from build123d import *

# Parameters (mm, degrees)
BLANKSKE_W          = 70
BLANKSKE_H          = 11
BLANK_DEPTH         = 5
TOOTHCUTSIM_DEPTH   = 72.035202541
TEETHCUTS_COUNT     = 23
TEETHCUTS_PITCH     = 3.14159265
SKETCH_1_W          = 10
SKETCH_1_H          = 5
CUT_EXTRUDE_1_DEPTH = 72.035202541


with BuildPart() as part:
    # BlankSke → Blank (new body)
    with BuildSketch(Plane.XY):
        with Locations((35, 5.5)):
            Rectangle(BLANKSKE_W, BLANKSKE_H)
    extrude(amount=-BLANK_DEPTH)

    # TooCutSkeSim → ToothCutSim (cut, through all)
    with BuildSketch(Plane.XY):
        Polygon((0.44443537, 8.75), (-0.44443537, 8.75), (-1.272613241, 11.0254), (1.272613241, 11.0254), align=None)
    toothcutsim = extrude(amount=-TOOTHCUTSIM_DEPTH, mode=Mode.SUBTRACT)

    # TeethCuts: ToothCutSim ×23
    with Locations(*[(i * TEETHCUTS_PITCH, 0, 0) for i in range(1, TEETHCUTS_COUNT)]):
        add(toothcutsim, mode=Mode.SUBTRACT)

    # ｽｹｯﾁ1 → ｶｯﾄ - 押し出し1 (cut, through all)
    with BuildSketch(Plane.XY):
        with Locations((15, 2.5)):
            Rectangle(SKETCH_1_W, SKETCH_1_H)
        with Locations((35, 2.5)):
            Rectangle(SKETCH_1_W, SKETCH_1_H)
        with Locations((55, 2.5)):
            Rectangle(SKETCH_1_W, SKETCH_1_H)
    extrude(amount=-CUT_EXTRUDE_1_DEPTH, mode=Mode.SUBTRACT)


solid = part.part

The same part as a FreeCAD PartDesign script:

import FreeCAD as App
import Part
import Sketcher

V = App.Vector
Q = App.Units.Quantity

doc = App.newDocument("Part")
params = doc.addObject("Spreadsheet::Sheet", "Params")
for row, (alias, value) in enumerate([
    ("sketch1_width", "70 mm"),
    ("sketch1_height", "11 mm"),
    ("pad1_length", "5 mm"),
    ("linearpattern_pitch", "3.141593 mm"),
    ("sketch3_width", "10 mm"),
    ("sketch3_height", "5 mm"),
], start=1):
    params.set(f"A{row}", alias)
    params.set(f"B{row}", "=" + value)
    params.setAlias(f"B{row}", alias)

body = doc.addObject("PartDesign::Body", "Body")

sketch1 = doc.addObject("Sketcher::SketchObject", "Sketch")
body.addObject(sketch1)
sketch1.AttachmentSupport = (doc.XY_Plane, [""])
sketch1.MapMode = "FlatFace"
sketch1.addGeometry(Part.LineSegment(V(0, 11, 0), V(0, 0, 0)), False)
sketch1.addGeometry(Part.LineSegment(V(0, 0, 0), V(70, 0, 0)), False)
sketch1.addGeometry(Part.LineSegment(V(70, 0, 0), V(70, 11, 0)), False)
sketch1.addGeometry(Part.LineSegment(V(70, 11, 0), V(0, 11, 0)), False)
sketch1.addConstraint(Sketcher.Constraint("Coincident", 0, 2, 1, 1))
sketch1.addConstraint(Sketcher.Constraint("Coincident", 1, 2, 2, 1))
sketch1.addConstraint(Sketcher.Constraint("Coincident", 2, 2, 3, 1))
sketch1.addConstraint(Sketcher.Constraint("Coincident", 3, 2, 0, 1))
sketch1.addConstraint(Sketcher.Constraint("Vertical", 0))
sketch1.addConstraint(Sketcher.Constraint("Horizontal", 1))
sketch1.addConstraint(Sketcher.Constraint("Vertical", 2))
sketch1.addConstraint(Sketcher.Constraint("Horizontal", 3))
sketch1.addConstraint(Sketcher.Constraint("Coincident", 0, 2, -1, 1))
sketch1.addConstraint(Sketcher.Constraint("DistanceX", 1, 1, 1, 2, 70.0))
sketch1.addConstraint(Sketcher.Constraint("DistanceY", 0, 2, 0, 1, 11.0))
sketch1.setExpression("Constraints[9]", "Params.sketch1_width")
sketch1.setExpression("Constraints[10]", "Params.sketch1_height")
pad1 = doc.addObject("PartDesign::Pad", "Pad")
body.addObject(pad1)
pad1.Profile = sketch1
pad1.setExpression("Length", "Params.pad1_length")
pad1.Reversed = True

sketch2 = doc.addObject("Sketcher::SketchObject", "Sketch001")
body.addObject(sketch2)
sketch2.AttachmentSupport = (doc.XY_Plane, [""])
sketch2.MapMode = "FlatFace"
sketch2.addGeometry(Part.LineSegment(V(-0.4, 8.8, 0), V(0.4, 8.8, 0)), False)
sketch2.addGeometry(Part.LineSegment(V(0.4, 8.8, 0), V(1.3, 11, 0)), False)
sketch2.addGeometry(Part.LineSegment(V(1.3, 11, 0), V(-1.3, 11, 0)), False)
sketch2.addGeometry(Part.LineSegment(V(-1.3, 11, 0), V(-0.4, 8.8, 0)), False)
sketch2.addConstraint(Sketcher.Constraint("Coincident", 0, 2, 1, 1))
sketch2.addConstraint(Sketcher.Constraint("Coincident", 1, 2, 2, 1))
sketch2.addConstraint(Sketcher.Constraint("Coincident", 2, 2, 3, 1))
sketch2.addConstraint(Sketcher.Constraint("Coincident", 3, 2, 0, 1))
sketch2.addConstraint(Sketcher.Constraint("Horizontal", 0))
sketch2.addConstraint(Sketcher.Constraint("Horizontal", 2))
sketch2.addConstraint(Sketcher.Constraint("Equal", 1, 3))
sketch2.addConstraint(Sketcher.Constraint("Angle", 1, Q("70 deg")))
sketch2.addConstraint(Sketcher.Constraint("DistanceY", -1, 1, 0, 2, 8.75))
sketch2.addConstraint(Sketcher.Constraint("DistanceX", 0, 1, 0, 2, 0.888871))
sketch2.addConstraint(Sketcher.Constraint("DistanceY", -1, 1, 1, 2, 11.0254))
sketch2.addConstraint(Sketcher.Constraint("DistanceX", -1, 1, 0, 2, 0.444435))
pocket1 = doc.addObject("PartDesign::Pocket", "Pocket")
body.addObject(pocket1)
pocket1.Profile = sketch2
pocket1.Type = "ThroughAll"
doc.recompute()

linearpattern = doc.addObject("PartDesign::LinearPattern", "LinearPattern")
body.addObject(linearpattern)
linearpattern.Originals = [pocket1]
linearpattern.Direction = (doc.X_Axis, [""])
linearpattern.Mode = "offset"
linearpattern.setExpression("Offset", "Params.linearpattern_pitch")
linearpattern.Occurrences = 23
body.Tip = linearpattern

sketch3 = doc.addObject("Sketcher::SketchObject", "Sketch002")
body.addObject(sketch3)
sketch3.AttachmentSupport = (doc.XY_Plane, [""])
sketch3.MapMode = "FlatFace"
sketch3.addGeometry(Part.LineSegment(V(10, 5, 0), V(10, 0, 0)), False)
sketch3.addGeometry(Part.LineSegment(V(10, 0, 0), V(20, 0, 0)), False)
sketch3.addGeometry(Part.LineSegment(V(20, 0, 0), V(20, 5, 0)), False)
sketch3.addGeometry(Part.LineSegment(V(20, 5, 0), V(10, 5, 0)), False)
sketch3.addGeometry(Part.LineSegment(V(30, 5, 0), V(30, 0, 0)), False)
sketch3.addGeometry(Part.LineSegment(V(30, 0, 0), V(40, 0, 0)), False)
sketch3.addGeometry(Part.LineSegment(V(40, 0, 0), V(40, 5, 0)), False)
sketch3.addGeometry(Part.LineSegment(V(40, 5, 0), V(30, 5, 0)), False)
sketch3.addGeometry(Part.LineSegment(V(50, 5, 0), V(50, 0, 0)), False)
sketch3.addGeometry(Part.LineSegment(V(50, 0, 0), V(60, 0, 0)), False)
sketch3.addGeometry(Part.LineSegment(V(60, 0, 0), V(60, 5, 0)), False)
sketch3.addGeometry(Part.LineSegment(V(60, 5, 0), V(50, 5, 0)), False)
sketch3.addConstraint(Sketcher.Constraint("Coincident", 0, 2, 1, 1))
sketch3.addConstraint(Sketcher.Constraint("Coincident", 1, 2, 2, 1))
sketch3.addConstraint(Sketcher.Constraint("Coincident", 2, 2, 3, 1))
sketch3.addConstraint(Sketcher.Constraint("Coincident", 3, 2, 0, 1))
sketch3.addConstraint(Sketcher.Constraint("Coincident", 4, 2, 5, 1))
sketch3.addConstraint(Sketcher.Constraint("Coincident", 5, 2, 6, 1))
sketch3.addConstraint(Sketcher.Constraint("Coincident", 6, 2, 7, 1))
sketch3.addConstraint(Sketcher.Constraint("Coincident", 7, 2, 4, 1))
sketch3.addConstraint(Sketcher.Constraint("Coincident", 8, 2, 9, 1))
sketch3.addConstraint(Sketcher.Constraint("Coincident", 9, 2, 10, 1))
sketch3.addConstraint(Sketcher.Constraint("Coincident", 10, 2, 11, 1))
sketch3.addConstraint(Sketcher.Constraint("Coincident", 11, 2, 8, 1))
sketch3.addConstraint(Sketcher.Constraint("Vertical", 0))
sketch3.addConstraint(Sketcher.Constraint("Horizontal", 1))
sketch3.addConstraint(Sketcher.Constraint("Vertical", 2))
sketch3.addConstraint(Sketcher.Constraint("Horizontal", 3))
sketch3.addConstraint(Sketcher.Constraint("Vertical", 4))
sketch3.addConstraint(Sketcher.Constraint("Horizontal", 5))
sketch3.addConstraint(Sketcher.Constraint("Vertical", 6))
sketch3.addConstraint(Sketcher.Constraint("Horizontal", 7))
sketch3.addConstraint(Sketcher.Constraint("Vertical", 8))
sketch3.addConstraint(Sketcher.Constraint("Horizontal", 9))
sketch3.addConstraint(Sketcher.Constraint("Vertical", 10))
sketch3.addConstraint(Sketcher.Constraint("Horizontal", 11))
sketch3.addConstraint(Sketcher.Constraint("PointOnObject", 0, 2, -1))
sketch3.addConstraint(Sketcher.Constraint("PointOnObject", 4, 2, -1))
sketch3.addConstraint(Sketcher.Constraint("PointOnObject", 8, 2, -1))
sketch3.addConstraint(Sketcher.Constraint("Horizontal", 3, 2, 6, 2))
sketch3.addConstraint(Sketcher.Constraint("Horizontal", 7, 2, 10, 2))
sketch3.addConstraint(Sketcher.Constraint("Equal", 3, 5))
sketch3.addConstraint(Sketcher.Constraint("Equal", 7, 9))
sketch3.addConstraint(Sketcher.Constraint("DistanceX", 1, 1, 1, 2, 10.0))
sketch3.addConstraint(Sketcher.Constraint("DistanceY", 0, 2, 0, 1, 5.0))
sketch3.addConstraint(Sketcher.Constraint("DistanceX", -1, 1, 0, 2, 10.0))
sketch3.addConstraint(Sketcher.Constraint("DistanceX", -1, 1, 4, 2, 30.0))
sketch3.addConstraint(Sketcher.Constraint("DistanceX", -1, 1, 8, 2, 50.0))
sketch3.setExpression("Constraints[31]", "Params.sketch3_width")
sketch3.setExpression("Constraints[32]", "Params.sketch3_height")
pocket2 = doc.addObject("PartDesign::Pocket", "Pocket001")
body.addObject(pocket2)
pocket2.Profile = sketch3
pocket2.Type = "ThroughAll"

doc.recompute()
